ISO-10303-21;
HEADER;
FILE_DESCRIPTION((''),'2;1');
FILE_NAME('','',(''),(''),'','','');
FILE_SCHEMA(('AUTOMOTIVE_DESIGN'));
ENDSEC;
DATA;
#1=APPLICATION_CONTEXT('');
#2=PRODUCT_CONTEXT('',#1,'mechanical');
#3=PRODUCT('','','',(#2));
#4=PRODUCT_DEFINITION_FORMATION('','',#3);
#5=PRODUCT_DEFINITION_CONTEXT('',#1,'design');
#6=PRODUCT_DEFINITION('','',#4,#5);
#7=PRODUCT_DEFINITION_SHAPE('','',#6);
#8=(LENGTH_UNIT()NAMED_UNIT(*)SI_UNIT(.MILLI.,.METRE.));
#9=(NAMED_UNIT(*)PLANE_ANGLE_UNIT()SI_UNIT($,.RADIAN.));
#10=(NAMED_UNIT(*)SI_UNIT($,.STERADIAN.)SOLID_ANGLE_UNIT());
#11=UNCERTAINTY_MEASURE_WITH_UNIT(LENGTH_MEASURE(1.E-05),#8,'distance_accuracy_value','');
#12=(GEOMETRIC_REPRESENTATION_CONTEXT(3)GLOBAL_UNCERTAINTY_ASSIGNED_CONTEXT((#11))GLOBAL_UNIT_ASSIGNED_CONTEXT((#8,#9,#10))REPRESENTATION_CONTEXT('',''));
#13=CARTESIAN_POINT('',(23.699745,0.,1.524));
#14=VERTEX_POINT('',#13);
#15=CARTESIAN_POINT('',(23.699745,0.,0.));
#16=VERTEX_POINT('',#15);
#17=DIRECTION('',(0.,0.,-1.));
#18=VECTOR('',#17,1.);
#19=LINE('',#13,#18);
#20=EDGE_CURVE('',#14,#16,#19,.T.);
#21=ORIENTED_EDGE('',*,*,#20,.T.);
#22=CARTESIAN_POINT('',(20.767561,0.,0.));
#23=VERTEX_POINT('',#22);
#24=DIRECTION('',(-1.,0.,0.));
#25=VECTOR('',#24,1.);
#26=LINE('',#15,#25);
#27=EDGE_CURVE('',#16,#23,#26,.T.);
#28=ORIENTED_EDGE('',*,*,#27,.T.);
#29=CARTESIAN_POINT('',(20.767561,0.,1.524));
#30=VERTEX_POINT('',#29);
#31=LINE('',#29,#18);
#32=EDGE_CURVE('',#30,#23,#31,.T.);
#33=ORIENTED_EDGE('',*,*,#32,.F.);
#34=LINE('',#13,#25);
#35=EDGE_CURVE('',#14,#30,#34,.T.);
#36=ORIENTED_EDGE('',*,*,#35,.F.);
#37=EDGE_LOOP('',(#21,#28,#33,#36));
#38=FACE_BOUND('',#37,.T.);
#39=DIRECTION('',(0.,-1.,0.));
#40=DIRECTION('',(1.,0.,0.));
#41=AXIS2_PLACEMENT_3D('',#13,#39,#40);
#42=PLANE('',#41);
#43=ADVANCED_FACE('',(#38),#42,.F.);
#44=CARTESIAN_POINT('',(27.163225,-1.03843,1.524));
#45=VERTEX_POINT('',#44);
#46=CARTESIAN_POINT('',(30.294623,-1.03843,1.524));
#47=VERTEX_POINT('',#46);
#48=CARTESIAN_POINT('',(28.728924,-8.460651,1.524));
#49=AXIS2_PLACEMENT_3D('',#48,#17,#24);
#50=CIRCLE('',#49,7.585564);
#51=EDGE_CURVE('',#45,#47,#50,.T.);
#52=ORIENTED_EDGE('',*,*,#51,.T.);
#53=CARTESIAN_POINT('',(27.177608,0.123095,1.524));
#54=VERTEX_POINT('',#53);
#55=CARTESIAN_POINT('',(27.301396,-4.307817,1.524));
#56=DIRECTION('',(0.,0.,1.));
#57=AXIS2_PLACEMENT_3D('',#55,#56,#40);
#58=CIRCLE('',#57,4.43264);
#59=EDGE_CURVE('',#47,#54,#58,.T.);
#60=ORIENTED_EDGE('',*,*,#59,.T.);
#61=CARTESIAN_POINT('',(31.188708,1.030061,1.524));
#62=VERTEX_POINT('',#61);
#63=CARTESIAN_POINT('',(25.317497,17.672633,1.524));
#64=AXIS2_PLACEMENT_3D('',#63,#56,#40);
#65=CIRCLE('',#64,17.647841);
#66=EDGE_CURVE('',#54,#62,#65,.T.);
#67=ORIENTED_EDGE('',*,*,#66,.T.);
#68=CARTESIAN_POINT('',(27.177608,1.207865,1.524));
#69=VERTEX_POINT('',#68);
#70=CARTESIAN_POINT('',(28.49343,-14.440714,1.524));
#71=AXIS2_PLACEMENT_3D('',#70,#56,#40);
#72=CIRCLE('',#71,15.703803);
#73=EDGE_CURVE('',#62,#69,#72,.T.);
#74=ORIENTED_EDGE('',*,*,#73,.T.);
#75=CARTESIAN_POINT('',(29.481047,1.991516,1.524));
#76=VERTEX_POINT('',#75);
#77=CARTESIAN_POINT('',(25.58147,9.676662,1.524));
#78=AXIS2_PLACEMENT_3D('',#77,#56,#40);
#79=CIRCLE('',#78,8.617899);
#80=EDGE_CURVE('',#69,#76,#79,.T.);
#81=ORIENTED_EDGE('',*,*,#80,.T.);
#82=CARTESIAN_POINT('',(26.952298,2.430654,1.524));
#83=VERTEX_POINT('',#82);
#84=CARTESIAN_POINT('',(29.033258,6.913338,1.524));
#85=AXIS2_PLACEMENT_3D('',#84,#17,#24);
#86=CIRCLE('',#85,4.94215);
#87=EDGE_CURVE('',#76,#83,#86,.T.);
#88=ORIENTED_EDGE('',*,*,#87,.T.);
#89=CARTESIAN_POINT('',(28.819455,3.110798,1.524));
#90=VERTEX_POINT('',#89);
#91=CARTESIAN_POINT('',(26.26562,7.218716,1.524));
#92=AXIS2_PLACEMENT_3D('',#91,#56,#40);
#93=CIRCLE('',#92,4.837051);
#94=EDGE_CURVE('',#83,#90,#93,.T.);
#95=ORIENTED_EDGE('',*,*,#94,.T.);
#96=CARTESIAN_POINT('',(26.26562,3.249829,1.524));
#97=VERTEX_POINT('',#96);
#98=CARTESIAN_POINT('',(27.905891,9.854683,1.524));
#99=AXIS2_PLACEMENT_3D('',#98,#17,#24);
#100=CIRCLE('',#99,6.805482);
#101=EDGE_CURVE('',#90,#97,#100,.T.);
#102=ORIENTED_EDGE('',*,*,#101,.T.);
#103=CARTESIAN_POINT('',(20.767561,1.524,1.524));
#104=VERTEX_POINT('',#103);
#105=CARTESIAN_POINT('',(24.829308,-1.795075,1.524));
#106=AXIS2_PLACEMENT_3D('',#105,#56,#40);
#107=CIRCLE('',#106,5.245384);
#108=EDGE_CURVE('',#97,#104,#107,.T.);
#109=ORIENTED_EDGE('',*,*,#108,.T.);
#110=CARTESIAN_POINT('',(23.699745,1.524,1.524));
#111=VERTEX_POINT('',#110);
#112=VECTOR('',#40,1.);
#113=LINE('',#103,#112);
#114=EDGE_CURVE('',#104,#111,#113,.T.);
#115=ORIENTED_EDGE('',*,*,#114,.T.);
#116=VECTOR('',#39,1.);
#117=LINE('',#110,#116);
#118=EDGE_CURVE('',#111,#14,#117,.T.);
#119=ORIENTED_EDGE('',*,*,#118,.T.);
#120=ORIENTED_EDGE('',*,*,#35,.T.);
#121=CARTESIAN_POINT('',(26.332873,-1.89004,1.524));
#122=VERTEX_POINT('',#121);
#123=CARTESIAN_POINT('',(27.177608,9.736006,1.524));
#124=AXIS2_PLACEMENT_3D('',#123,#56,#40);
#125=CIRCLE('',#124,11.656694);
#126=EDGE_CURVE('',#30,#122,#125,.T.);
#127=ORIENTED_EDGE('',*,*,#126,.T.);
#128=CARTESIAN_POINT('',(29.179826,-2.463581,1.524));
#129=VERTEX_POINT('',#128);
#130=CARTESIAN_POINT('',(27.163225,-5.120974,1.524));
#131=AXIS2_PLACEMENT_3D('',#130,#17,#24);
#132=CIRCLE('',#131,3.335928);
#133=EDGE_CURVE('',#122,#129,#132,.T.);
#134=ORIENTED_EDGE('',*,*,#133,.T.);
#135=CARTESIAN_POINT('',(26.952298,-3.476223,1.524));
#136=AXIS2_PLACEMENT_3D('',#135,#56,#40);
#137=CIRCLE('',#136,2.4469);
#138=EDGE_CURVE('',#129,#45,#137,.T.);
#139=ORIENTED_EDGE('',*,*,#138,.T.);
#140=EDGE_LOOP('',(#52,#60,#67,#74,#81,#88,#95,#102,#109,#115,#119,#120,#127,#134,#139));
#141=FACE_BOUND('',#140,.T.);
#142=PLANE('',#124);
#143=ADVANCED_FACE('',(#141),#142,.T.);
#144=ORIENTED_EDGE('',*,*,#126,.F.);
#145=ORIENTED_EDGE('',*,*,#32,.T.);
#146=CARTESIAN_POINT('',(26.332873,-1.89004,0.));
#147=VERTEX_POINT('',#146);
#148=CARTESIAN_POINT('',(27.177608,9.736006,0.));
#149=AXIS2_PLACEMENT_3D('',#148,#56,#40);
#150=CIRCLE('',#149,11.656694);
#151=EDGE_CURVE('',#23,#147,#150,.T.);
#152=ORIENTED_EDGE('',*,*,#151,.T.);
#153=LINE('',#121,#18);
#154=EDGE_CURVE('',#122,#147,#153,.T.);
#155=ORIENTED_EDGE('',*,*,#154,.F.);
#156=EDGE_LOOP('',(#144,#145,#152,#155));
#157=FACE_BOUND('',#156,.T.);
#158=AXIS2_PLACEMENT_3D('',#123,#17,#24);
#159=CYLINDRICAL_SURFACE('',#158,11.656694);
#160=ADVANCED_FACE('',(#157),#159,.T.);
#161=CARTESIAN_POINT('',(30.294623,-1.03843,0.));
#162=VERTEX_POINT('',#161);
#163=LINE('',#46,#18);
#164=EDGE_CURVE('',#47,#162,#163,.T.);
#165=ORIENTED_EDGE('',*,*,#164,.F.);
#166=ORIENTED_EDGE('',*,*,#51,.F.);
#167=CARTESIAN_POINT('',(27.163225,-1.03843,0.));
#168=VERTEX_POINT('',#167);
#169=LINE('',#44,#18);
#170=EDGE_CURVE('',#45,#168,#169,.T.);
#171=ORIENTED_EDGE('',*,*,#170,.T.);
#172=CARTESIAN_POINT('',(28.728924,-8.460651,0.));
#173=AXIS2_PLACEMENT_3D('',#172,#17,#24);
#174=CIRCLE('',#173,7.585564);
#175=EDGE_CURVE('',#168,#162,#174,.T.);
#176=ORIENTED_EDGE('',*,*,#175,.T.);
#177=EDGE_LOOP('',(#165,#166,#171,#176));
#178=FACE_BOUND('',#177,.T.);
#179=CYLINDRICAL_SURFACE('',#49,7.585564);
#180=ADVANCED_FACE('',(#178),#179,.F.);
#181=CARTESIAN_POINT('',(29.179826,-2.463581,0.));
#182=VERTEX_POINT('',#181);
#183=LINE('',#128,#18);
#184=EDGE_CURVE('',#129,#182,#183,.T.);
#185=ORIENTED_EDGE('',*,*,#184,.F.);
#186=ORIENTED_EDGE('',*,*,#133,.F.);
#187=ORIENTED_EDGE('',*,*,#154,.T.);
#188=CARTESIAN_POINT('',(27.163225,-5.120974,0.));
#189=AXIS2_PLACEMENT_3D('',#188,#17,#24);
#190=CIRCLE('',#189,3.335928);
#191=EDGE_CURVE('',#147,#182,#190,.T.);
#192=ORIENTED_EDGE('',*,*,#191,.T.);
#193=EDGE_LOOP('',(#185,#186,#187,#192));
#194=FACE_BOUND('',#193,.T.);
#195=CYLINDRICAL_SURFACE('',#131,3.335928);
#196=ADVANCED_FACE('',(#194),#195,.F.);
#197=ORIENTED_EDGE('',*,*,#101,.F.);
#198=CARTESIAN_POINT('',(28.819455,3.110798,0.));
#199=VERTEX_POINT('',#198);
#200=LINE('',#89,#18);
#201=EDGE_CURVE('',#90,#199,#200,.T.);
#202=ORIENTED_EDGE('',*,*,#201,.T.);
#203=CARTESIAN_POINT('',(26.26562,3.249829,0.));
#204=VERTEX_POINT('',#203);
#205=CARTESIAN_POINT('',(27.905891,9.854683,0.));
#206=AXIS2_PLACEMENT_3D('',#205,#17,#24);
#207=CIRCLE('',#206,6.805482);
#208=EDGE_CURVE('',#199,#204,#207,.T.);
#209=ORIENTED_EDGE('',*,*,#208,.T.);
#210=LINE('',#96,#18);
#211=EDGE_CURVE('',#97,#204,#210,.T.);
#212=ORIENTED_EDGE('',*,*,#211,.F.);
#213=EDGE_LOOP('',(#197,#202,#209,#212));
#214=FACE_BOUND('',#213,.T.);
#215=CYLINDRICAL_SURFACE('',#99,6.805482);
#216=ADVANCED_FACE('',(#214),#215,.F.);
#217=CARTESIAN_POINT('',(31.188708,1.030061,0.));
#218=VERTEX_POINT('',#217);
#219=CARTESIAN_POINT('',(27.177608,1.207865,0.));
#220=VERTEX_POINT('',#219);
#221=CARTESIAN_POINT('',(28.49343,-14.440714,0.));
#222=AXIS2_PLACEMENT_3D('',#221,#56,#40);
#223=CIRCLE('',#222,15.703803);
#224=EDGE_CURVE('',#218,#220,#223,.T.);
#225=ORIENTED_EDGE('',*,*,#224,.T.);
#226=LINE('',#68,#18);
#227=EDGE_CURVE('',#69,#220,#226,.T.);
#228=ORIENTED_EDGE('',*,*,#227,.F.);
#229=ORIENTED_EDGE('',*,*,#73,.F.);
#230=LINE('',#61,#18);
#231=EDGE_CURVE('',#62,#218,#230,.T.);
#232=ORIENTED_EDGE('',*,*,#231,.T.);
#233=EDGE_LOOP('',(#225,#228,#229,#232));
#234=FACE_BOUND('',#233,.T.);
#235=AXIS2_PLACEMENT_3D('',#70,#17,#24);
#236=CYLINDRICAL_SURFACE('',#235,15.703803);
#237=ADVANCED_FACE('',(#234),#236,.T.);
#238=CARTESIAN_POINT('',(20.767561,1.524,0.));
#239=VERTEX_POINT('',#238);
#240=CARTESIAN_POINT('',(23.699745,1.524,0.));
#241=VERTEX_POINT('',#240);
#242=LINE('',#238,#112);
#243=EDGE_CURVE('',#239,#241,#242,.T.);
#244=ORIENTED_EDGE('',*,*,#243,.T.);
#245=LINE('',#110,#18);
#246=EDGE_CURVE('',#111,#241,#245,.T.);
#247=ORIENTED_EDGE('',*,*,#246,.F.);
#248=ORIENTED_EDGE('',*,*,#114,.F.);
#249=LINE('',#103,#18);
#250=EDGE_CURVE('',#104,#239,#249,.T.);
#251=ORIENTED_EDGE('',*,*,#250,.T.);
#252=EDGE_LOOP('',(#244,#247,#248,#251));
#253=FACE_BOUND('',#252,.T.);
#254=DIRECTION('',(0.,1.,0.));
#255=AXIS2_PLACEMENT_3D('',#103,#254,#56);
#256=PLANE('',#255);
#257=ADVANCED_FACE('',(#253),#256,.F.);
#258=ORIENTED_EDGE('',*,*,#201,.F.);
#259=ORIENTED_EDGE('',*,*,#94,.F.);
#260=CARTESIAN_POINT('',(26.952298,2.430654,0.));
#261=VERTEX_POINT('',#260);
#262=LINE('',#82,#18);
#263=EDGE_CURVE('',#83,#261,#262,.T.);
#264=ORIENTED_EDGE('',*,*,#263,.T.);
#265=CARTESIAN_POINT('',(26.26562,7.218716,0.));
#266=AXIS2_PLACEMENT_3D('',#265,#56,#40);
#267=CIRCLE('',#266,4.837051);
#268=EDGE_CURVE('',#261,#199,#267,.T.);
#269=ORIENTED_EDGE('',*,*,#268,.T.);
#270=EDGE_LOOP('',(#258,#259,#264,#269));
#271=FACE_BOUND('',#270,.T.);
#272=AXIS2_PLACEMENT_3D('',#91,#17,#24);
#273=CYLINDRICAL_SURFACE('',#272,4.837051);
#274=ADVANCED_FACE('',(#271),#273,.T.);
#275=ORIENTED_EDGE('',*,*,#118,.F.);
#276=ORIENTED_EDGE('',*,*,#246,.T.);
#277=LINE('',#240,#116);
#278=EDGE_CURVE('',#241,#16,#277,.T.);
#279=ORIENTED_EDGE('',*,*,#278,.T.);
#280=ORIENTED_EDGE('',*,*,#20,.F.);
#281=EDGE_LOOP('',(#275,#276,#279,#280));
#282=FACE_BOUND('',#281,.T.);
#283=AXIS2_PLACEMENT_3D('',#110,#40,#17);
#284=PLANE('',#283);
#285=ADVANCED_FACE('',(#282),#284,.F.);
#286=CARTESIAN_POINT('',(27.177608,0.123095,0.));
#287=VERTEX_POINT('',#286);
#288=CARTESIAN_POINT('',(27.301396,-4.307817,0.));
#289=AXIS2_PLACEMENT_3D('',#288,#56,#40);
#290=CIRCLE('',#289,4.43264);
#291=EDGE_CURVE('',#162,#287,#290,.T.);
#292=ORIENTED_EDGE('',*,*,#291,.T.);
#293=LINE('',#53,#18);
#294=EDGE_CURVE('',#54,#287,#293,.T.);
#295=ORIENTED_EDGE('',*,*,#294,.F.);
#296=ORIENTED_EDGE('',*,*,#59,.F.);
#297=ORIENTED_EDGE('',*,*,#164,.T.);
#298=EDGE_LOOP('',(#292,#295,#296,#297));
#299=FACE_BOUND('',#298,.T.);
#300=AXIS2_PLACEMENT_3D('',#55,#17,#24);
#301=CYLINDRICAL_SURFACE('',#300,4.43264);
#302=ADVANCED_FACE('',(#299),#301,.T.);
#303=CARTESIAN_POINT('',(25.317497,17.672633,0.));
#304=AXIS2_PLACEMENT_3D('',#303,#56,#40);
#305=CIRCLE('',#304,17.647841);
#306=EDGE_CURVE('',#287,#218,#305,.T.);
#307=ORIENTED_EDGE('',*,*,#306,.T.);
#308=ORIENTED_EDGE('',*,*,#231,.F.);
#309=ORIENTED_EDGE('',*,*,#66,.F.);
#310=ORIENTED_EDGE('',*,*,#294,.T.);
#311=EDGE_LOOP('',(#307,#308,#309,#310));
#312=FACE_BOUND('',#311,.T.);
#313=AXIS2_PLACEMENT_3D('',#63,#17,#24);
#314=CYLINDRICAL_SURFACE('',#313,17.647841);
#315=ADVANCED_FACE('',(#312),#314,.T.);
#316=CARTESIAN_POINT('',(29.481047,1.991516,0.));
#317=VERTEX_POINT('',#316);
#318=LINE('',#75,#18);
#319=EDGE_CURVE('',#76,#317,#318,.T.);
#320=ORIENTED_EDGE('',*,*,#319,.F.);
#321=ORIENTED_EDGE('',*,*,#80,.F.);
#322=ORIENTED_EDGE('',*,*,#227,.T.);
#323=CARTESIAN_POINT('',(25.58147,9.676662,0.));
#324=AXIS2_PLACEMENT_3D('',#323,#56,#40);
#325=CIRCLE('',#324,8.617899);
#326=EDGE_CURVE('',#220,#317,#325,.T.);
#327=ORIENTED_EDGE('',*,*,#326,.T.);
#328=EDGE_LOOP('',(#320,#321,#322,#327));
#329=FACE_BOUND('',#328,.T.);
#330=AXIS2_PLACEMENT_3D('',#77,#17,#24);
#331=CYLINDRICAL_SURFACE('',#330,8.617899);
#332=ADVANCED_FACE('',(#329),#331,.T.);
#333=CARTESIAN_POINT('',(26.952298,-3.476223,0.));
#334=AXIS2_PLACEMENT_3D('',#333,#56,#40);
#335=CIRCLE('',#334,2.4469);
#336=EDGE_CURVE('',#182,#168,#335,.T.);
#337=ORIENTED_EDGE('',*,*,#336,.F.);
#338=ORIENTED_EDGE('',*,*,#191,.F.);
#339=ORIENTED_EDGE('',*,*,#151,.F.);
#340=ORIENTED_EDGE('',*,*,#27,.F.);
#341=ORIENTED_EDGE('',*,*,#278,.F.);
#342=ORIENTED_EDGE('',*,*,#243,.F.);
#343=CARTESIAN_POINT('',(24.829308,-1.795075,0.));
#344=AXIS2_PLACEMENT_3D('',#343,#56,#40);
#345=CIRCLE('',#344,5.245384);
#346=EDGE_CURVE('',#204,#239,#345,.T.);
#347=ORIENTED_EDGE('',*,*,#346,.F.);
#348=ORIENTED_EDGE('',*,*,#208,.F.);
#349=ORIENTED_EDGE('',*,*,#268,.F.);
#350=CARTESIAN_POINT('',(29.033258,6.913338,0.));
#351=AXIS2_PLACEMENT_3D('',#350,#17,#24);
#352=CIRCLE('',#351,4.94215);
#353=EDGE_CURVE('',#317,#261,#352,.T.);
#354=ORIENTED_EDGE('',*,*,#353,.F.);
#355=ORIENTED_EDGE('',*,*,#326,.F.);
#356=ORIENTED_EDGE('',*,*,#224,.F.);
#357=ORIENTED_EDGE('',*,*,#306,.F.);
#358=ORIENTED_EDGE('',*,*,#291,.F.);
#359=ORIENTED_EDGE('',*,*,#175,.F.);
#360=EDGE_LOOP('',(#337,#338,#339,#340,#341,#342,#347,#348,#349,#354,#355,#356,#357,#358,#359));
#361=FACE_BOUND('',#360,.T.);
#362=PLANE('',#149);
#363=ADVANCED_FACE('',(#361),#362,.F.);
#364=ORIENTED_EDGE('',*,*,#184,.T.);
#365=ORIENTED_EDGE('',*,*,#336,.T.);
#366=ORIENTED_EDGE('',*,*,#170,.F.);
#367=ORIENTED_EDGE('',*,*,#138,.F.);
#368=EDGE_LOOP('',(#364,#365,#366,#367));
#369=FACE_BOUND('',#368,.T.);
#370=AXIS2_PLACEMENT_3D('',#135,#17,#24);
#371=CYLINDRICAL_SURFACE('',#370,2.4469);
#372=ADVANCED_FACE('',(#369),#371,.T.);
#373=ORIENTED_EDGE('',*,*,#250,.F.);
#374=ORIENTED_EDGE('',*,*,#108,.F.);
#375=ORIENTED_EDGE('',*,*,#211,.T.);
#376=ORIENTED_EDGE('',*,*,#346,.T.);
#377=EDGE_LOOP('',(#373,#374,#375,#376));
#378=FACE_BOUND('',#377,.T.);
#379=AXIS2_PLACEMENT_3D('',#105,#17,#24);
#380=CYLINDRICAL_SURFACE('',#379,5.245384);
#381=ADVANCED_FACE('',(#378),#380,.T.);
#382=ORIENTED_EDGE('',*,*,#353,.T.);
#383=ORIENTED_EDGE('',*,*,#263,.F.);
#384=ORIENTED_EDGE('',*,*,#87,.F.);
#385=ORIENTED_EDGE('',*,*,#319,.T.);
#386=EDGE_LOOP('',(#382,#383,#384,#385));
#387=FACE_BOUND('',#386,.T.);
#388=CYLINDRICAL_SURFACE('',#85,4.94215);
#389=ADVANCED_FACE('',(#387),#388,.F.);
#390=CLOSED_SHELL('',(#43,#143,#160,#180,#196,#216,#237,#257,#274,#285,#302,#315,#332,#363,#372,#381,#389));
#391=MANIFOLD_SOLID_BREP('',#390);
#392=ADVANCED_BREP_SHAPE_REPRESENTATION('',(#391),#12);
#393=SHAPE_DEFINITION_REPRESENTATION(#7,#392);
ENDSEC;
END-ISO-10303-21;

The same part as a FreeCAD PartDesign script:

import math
import FreeCAD as App
import Part
import Sketcher

V = App.Vector
Q = App.Units.Quantity

doc = App.newDocument("Part")
body = doc.addObject("PartDesign::Body", "Body")

# Sketch on XY plane
sketch1 = body.newObject("Sketcher::SketchObject", "Sketch")
sketch1.AttachmentSupport = (doc.getObject("XY_Plane"), [""])
sketch1.MapMode = "FlatFace"
sketch1.addGeometry([
    Part.LineSegment(V(23.7, 1.5, 0), V(23.7, 0, 0)),  # 0
    Part.LineSegment(V(23.7, 0, 0), V(20.8, 0, 0)),  # 1
    Part.ArcOfCircle(Part.Circle(V(27.2, 9.7, 0), V(0, 0, 1), 11.7), math.radians(-123), math.radians(-94)),  # 2
    Part.ArcOfCircle(Part.Circle(V(27.2, -5.1, 0), V(0, 0, 1), 3.3), math.radians(53), math.radians(104)),  # 3
    Part.ArcOfCircle(Part.Circle(V(27, -3.5, 0), V(0, 0, 1), 2.4), math.radians(24), math.radians(85)),  # 4
    Part.ArcOfCircle(Part.Circle(V(28.7, -8.5, 0), V(0, 0, 1), 7.6), math.radians(78), math.radians(102)),  # 5
    Part.ArcOfCircle(Part.Circle(V(27.3, -4.3, 0), V(0, 0, 1), 4.4), math.radians(48), math.radians(92)),  # 6
    Part.ArcOfCircle(Part.Circle(V(25.3, 17.7, 0), V(0, 0, 1), 17.6), math.radians(-83.95), math.radians(-70.57)),  # 7
    Part.ArcOfCircle(Part.Circle(V(28.5, -14.4, 0), V(0, 0, 1), 15.7), math.radians(80.12), math.radians(94.81)),  # 8
    Part.ArcOfCircle(Part.Circle(V(25.6, 9.7, 0), V(0, 0, 1), 8.6), math.radians(-79.33), math.radians(-63.1)),  # 9
    Part.ArcOfCircle(Part.Circle(V(29, 6.9, 0), V(0, 0, 1), 4.9), math.radians(-115), math.radians(-85)),  # 10
    Part.ArcOfCircle(Part.Circle(V(26.3, 7.2, 0), V(0, 0, 1), 4.8), math.radians(-82), math.radians(-58)),  # 11
    Part.ArcOfCircle(Part.Circle(V(27.9, 9.9, 0), V(0, 0, 1), 6.8), math.radians(-104), math.radians(-82)),  # 12
    Part.ArcOfCircle(Part.Circle(V(24.8, -1.8, 0), V(0, 0, 1), 5.2), math.radians(74), math.radians(141)),  # 13
    Part.LineSegment(V(20.8, 1.5, 0), V(23.7, 1.5, 0)),  # 14
], False)
sketch1.addConstraint([
    Sketcher.Constraint("Coincident", 0, 2, 1, 1),
    Sketcher.Constraint("Coincident", 1, 2, 2, 1),
    Sketcher.Constraint("Coincident", 2, 2, 3, 2),
    Sketcher.Constraint("Coincident", 3, 1, 4, 1),
    Sketcher.Constraint("Coincident", 4, 2, 5, 2),
    Sketcher.Constraint("Coincident", 5, 1, 6, 1),
    Sketcher.Constraint("Coincident", 6, 2, 7, 1),
    Sketcher.Constraint("Coincident", 7, 2, 8, 1),
    Sketcher.Constraint("Coincident", 8, 2, 9, 1),
    Sketcher.Constraint("Coincident", 9, 2, 10, 2),
    Sketcher.Constraint("Coincident", 10, 1, 11, 1),
    Sketcher.Constraint("Coincident", 11, 2, 12, 2),
    Sketcher.Constraint("Coincident", 12, 1, 13, 1),
    Sketcher.Constraint("Coincident", 13, 2, 14, 1),
    Sketcher.Constraint("Coincident", 14, 2, 0, 1),
    Sketcher.Constraint("Vertical", 0),
    Sketcher.Constraint("Horizontal", 1),
    Sketcher.Constraint("Horizontal", 14),
    Sketcher.Constraint("PointOnObject", 0, 2, -1),
    Sketcher.Constraint("Horizontal", 4, 2, 5, 1),
    Sketcher.Constraint("Vertical", 3, 3, 4, 2),
    Sketcher.Constraint("Vertical", 2, 3, 6, 2),
    Sketcher.Constraint("Vertical", 6, 2, 8, 2),
    Sketcher.Constraint("Vertical", 4, 3, 10, 1),
    Sketcher.Constraint("Vertical", 11, 3, 12, 1),
    Sketcher.Constraint("Vertical", 1, 2, 13, 2),
    Sketcher.Constraint("DistanceY", 0, 2, 0, 1, Q("0.06 in")),
    Sketcher.Constraint("Radius", 4, Q("2.4469 mm")),
    Sketcher.Constraint("Radius", 9, Q("8.617899 mm")),
    Sketcher.Constraint("Radius", 3, Q("3.335928 mm")),
    Sketcher.Constraint("Radius", 6, Q("4.43264 mm")),
    Sketcher.Constraint("Radius", 7, Q("17.647841 mm")),
    Sketcher.Constraint("Radius", 10, Q("4.94215 mm")),
    Sketcher.Constraint("Radius", 11, Q("4.837051 mm")),
    Sketcher.Constraint("Radius", 2, Q("11.656694 mm")),
    Sketcher.Constraint("Radius", 5, Q("7.585564 mm")),
    Sketcher.Constraint("Radius", 8, Q("15.703803 mm")),
    Sketcher.Constraint("Radius", 12, Q("6.805482 mm")),
    Sketcher.Constraint("Radius", 13, Q("5.245384 mm")),
    Sketcher.Constraint("DistanceX", 5, 1, 7, 2, Q("0.0352002 in")),
    Sketcher.Constraint("DistanceX", -1, 1, 4, 3, Q("26.952298 mm")),
    Sketcher.Constraint("DistanceX", 3, 3, 5, 3, Q("1.565699 mm")),
    Sketcher.Constraint("DistanceX", 7, 3, 4, 3, Q("1.634801 mm")),
    Sketcher.Constraint("DistanceX", 7, 3, 6, 3, Q("1.983898 mm")),
    Sketcher.Constraint("DistanceY", 3, 3, 13, 3, Q("3.325899 mm")),
    Sketcher.Constraint("DistanceX", 3, 3, 3, 1, Q("2.016601 mm")),
    Sketcher.Constraint("DistanceX", 13, 3, 6, 2, Q("2.3483 mm")),
    Sketcher.Constraint("DistanceX", 6, 2, 7, 2, Q("4.0111 mm")),
    Sketcher.Constraint("DistanceY", 2, 2, 7, 2, Q("2.920101 mm")),
    Sketcher.Constraint("DistanceX", 1, 2, 1, 1, Q("2.932185 mm")),
    Sketcher.Constraint("DistanceX", -1, 1, 2, 3, Q("27.177608 mm")),
    Sketcher.Constraint("DistanceX", -1, 1, 8, 3, Q("28.49343 mm")),
    Sketcher.Constraint("DistanceX", -1, 1, 9, 3, Q("25.58147 mm")),
    Sketcher.Constraint("DistanceX", -1, 1, 10, 3, Q("29.033258 mm")),
    Sketcher.Constraint("DistanceX", -1, 1, 11, 3, Q("26.26562 mm")),
    Sketcher.Constraint("DistanceX", -1, 1, 12, 3, Q("27.905891 mm")),
    Sketcher.Constraint("DistanceY", 10, 3, 2, 3, Q("2.822668 mm")),
])
pad1 = body.newObject("PartDesign::Pad", "Pad")
pad1.Profile = sketch1
pad1.Length = Q("0.06 in")

doc.recompute()
